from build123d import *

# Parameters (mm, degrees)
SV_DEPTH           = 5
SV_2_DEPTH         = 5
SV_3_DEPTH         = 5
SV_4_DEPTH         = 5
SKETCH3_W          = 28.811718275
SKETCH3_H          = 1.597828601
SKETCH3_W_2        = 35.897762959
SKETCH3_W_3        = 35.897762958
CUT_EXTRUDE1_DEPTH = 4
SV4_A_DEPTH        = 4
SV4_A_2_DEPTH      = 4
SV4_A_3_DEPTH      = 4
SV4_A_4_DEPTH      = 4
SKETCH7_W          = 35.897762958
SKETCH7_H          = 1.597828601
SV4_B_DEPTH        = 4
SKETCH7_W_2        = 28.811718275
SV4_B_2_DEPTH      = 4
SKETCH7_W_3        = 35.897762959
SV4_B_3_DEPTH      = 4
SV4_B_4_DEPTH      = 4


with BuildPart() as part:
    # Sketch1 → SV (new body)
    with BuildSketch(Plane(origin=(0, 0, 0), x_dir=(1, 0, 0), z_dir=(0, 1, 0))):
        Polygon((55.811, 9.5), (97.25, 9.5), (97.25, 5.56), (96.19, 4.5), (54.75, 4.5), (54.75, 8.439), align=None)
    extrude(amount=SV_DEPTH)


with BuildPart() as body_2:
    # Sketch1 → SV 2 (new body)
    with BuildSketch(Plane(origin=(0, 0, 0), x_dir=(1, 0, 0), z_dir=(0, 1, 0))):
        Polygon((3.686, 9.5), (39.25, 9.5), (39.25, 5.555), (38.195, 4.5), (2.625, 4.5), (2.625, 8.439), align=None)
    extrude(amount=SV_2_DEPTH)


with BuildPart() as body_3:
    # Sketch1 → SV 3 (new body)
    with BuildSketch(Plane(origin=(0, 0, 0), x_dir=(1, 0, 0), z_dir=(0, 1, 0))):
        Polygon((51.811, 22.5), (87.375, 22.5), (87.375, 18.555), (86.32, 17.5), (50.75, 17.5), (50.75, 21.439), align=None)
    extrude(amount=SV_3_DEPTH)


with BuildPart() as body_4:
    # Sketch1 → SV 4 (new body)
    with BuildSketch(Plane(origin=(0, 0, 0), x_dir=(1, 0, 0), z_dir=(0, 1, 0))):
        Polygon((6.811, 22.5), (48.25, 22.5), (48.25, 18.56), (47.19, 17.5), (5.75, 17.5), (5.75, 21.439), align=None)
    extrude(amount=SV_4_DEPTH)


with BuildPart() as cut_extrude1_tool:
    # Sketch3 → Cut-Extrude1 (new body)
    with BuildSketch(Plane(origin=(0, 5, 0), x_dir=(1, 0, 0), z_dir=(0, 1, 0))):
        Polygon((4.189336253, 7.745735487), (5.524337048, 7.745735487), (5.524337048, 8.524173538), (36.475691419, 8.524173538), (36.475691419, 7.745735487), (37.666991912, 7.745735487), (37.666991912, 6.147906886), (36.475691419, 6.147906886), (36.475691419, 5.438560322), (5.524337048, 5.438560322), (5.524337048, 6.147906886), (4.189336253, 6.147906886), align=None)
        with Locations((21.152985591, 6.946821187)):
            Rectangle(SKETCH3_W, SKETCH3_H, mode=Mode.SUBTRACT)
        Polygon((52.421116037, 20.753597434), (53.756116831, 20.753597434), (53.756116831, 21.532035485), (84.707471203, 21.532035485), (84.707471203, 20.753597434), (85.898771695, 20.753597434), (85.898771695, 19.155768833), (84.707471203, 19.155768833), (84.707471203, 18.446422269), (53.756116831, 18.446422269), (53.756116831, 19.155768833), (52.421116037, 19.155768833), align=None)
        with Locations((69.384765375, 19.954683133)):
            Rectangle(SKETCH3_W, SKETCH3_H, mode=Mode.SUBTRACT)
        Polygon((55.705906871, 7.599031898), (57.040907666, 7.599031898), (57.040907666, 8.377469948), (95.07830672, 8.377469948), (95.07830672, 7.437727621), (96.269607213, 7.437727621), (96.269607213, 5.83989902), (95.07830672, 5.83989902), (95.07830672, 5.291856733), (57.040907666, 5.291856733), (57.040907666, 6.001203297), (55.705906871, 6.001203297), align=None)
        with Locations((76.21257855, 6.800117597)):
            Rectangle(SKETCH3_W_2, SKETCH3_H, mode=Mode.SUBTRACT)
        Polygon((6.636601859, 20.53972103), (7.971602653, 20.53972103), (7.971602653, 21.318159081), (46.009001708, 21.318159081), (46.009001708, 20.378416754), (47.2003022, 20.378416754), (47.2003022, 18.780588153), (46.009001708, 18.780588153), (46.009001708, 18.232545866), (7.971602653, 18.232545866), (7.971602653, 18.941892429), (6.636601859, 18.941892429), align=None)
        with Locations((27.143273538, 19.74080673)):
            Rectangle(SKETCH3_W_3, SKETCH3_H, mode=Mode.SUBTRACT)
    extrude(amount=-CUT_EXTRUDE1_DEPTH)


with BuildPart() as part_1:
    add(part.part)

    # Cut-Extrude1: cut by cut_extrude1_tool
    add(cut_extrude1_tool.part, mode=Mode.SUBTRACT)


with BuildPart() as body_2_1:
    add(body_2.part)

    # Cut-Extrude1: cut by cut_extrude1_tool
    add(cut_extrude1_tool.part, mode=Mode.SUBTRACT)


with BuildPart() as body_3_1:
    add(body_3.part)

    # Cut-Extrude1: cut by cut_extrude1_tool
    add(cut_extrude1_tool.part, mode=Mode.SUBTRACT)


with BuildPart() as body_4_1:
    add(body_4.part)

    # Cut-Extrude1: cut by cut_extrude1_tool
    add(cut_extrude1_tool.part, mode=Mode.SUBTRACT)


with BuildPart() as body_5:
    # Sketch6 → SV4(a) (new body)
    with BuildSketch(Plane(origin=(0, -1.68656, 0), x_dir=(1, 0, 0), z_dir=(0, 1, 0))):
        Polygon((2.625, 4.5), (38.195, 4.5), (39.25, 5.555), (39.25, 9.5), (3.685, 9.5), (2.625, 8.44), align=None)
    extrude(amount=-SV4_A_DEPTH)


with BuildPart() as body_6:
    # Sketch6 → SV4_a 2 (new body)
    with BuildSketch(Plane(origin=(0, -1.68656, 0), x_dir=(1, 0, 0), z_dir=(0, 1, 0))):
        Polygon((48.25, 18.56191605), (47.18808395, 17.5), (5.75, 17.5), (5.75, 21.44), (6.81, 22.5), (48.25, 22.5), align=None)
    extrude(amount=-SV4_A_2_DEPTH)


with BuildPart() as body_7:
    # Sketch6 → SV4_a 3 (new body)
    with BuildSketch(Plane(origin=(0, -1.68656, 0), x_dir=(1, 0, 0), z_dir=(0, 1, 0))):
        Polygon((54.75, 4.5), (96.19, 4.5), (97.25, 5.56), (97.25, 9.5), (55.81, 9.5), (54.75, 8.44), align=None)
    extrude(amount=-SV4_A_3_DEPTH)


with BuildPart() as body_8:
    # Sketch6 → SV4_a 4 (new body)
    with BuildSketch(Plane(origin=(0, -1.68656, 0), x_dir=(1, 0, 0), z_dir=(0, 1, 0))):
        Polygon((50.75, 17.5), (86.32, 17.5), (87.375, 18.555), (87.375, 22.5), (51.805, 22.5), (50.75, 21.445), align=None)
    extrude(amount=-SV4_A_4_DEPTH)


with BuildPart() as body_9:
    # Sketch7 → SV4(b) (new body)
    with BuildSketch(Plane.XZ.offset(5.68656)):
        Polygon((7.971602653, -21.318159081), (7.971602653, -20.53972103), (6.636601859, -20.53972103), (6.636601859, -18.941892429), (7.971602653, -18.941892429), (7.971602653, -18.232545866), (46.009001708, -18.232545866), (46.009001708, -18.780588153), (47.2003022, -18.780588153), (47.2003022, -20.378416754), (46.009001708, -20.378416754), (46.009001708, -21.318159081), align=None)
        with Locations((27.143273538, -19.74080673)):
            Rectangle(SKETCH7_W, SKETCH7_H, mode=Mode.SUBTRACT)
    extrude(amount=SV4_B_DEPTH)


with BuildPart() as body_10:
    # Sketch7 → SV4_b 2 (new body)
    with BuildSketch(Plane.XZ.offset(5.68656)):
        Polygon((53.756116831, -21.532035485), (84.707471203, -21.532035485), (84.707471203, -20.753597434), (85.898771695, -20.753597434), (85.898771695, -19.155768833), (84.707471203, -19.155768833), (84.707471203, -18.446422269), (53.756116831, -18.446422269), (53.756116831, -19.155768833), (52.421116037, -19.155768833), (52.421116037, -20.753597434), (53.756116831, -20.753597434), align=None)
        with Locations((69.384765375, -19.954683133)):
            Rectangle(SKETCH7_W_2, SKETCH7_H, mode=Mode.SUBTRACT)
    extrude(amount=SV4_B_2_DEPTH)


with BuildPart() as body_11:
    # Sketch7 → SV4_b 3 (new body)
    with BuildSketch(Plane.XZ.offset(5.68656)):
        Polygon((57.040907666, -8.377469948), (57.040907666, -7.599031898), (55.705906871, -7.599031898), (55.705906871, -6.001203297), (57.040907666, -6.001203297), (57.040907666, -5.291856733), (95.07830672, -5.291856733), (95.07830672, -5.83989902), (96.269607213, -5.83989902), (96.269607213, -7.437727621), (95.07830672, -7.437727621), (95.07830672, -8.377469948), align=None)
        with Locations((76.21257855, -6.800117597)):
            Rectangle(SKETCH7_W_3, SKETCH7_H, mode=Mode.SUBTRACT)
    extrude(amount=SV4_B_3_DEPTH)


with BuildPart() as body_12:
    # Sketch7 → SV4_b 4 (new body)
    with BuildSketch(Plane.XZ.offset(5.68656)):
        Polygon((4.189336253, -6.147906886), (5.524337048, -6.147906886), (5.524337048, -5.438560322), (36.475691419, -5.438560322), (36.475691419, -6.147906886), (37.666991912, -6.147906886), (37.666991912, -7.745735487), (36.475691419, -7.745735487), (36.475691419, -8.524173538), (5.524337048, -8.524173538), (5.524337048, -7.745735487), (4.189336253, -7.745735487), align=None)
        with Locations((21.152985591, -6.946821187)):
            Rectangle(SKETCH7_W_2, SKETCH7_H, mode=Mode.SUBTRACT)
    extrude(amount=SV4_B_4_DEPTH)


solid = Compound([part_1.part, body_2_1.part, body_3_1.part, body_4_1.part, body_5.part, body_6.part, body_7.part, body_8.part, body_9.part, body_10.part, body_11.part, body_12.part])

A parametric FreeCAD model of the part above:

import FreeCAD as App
import Part
import Sketcher

V = App.Vector
Q = App.Units.Quantity

doc = App.newDocument("Part")
body = doc.addObject("PartDesign::Body", "Body")

# Sketch on XZ plane
sketch1 = doc.addObject("Sketcher::SketchObject", "Sketch")
body.addObject(sketch1)
sketch1.AttachmentSupport = (doc.XZ_Plane, [""])
sketch1.MapMode = "FlatFace"
sketch1.addGeometry([
    Part.LineSegment(V(97.2, -9.5, 0), V(55.8, -9.5, 0)),  # 0
    Part.LineSegment(V(55.8, -9.5, 0), V(54.8, -8.4, 0)),  # 1
    Part.LineSegment(V(54.8, -8.4, 0), V(54.8, -4.5, 0)),  # 2
    Part.LineSegment(V(54.8, -4.5, 0), V(96.2, -4.5, 0)),  # 3
    Part.LineSegment(V(96.2, -4.5, 0), V(97.2, -5.6, 0)),  # 4
    Part.LineSegment(V(97.2, -5.6, 0), V(97.2, -9.5, 0)),  # 5
], False)
sketch1.addConstraint([
    Sketcher.Constraint("Coincident", 0, 2, 1, 1),
    Sketcher.Constraint("Coincident", 1, 2, 2, 1),
    Sketcher.Constraint("Coincident", 2, 2, 3, 1),
    Sketcher.Constraint("Coincident", 3, 2, 4, 1),
    Sketcher.Constraint("Coincident", 4, 2, 5, 1),
    Sketcher.Constraint("Coincident", 5, 2, 0, 1),
    Sketcher.Constraint("Horizontal", 0),
    Sketcher.Constraint("Vertical", 2),
    Sketcher.Constraint("Horizontal", 3),
    Sketcher.Constraint("Vertical", 5),
    Sketcher.Constraint("Parallel", 1, 4),
    Sketcher.Constraint("Angle", 1, Q("135 deg")),
    Sketcher.Constraint("DistanceY", 0, 2, 2, 2, Q("5 mm")),
    Sketcher.Constraint("DistanceX", 3, 1, 3, 2, Q("41.44 mm")),
    Sketcher.Constraint("DistanceY", 5, 2, 5, 1, Q("3.94 mm")),
    Sketcher.Constraint("DistanceY", 0, 2, -1, 1, Q("9.5 mm")),
    Sketcher.Constraint("DistanceX", 0, 2, 0, 1, Q("41.439 mm")),
    Sketcher.Constraint("DistanceX", -1, 1, 1, 2, Q("54.75 mm")),
])
pad1 = doc.addObject("PartDesign::Pad", "Pad")
body.addObject(pad1)
pad1.Profile = sketch1
pad1.Length = 5
pad1.Reversed = True
body2 = doc.addObject("PartDesign::Body", "Body001")

# Sketch on XZ plane
sketch2 = doc.addObject("Sketcher::SketchObject", "Sketch001")
body2.addObject(sketch2)
sketch2.AttachmentSupport = (doc.getObject("XZ_Plane001"), [""])
sketch2.MapMode = "FlatFace"
sketch2.addGeometry([
    Part.LineSegment(V(39.2, -9.5, 0), V(3.7, -9.5, 0)),  # 0
    Part.LineSegment(V(3.7, -9.5, 0), V(2.6, -8.4, 0)),  # 1
    Part.LineSegment(V(2.6, -8.4, 0), V(2.6, -4.5, 0)),  # 2
    Part.LineSegment(V(2.6, -4.5, 0), V(38.2, -4.5, 0)),  # 3
    Part.LineSegment(V(38.2, -4.5, 0), V(39.2, -5.6, 0)),  # 4
    Part.LineSegment(V(39.2, -5.6, 0), V(39.2, -9.5, 0)),  # 5
], False)
sketch2.addConstraint([
    Sketcher.Constraint("Coincident", 0, 2, 1, 1),
    Sketcher.Constraint("Coincident", 1, 2, 2, 1),
    Sketcher.Constraint("Coincident", 2, 2, 3, 1),
    Sketcher.Constraint("Coincident", 3, 2, 4, 1),
    Sketcher.Constraint("Coincident", 4, 2, 5, 1),
    Sketcher.Constraint("Coincident", 5, 2, 0, 1),
    Sketcher.Constraint("Horizontal", 0),
    Sketcher.Constraint("Vertical", 2),
    Sketcher.Constraint("Horizontal", 3),
    Sketcher.Constraint("Vertical", 5),
    Sketcher.Constraint("Parallel", 1, 4),
    Sketcher.Constraint("Angle", 1, Q("135 deg")),
    Sketcher.Constraint("DistanceY", 0, 2, 2, 2, Q("5 mm")),
    Sketcher.Constraint("DistanceX", 3, 1, 3, 2, Q("35.57 mm")),
    Sketcher.Constraint("DistanceY", 0, 2, -1, 1, Q("9.5 mm")),
    Sketcher.Constraint("DistanceX", 0, 2, 0, 1, Q("35.564 mm")),
    Sketcher.Constraint("DistanceY", 2, 1, 2, 2, Q("3.939 mm")),
    Sketcher.Constraint("DistanceX", -1, 1, 4, 2, Q("39.25 mm")),
])
pad2 = doc.addObject("PartDesign::Pad", "Pad001")
body2.addObject(pad2)
pad2.Profile = sketch2
pad2.Length = 5
pad2.Reversed = True
body3 = doc.addObject("PartDesign::Body", "Body002")

# Sketch on XZ plane
sketch3 = doc.addObject("Sketcher::SketchObject", "Sketch002")
body3.addObject(sketch3)
sketch3.AttachmentSupport = (doc.getObject("XZ_Plane002"), [""])
sketch3.MapMode = "FlatFace"
sketch3.addGeometry([
    Part.LineSegment(V(87.4, -22.5, 0), V(51.8, -22.5, 0)),  # 0
    Part.LineSegment(V(51.8, -22.5, 0), V(50.8, -21.4, 0)),  # 1
    Part.LineSegment(V(50.8, -21.4, 0), V(50.8, -17.5, 0)),  # 2
    Part.LineSegment(V(50.8, -17.5, 0), V(86.3, -17.5, 0)),  # 3
    Part.LineSegment(V(86.3, -17.5, 0), V(87.4, -18.6, 0)),  # 4
    Part.LineSegment(V(87.4, -18.6, 0), V(87.4, -22.5, 0)),  # 5
], False)
sketch3.addConstraint([
    Sketcher.Constraint("Coincident", 0, 2, 1, 1),
    Sketcher.Constraint("Coincident", 1, 2, 2, 1),
    Sketcher.Constraint("Coincident", 2, 2, 3, 1),
    Sketcher.Constraint("Coincident", 3, 2, 4, 1),
    Sketcher.Constraint("Coincident", 4, 2, 5, 1),
    Sketcher.Constraint("Coincident", 5, 2, 0, 1),
    Sketcher.Constraint("Horizontal", 0),
    Sketcher.Constraint("Vertical", 2),
    Sketcher.Constraint("Horizontal", 3),
    Sketcher.Constraint("Vertical", 5),
    Sketcher.Constraint("Parallel", 1, 4),
    Sketcher.Constraint("Angle", 1, Q("135 deg")),
    Sketcher.Constraint("DistanceY", 0, 2, 2, 2, Q("5 mm")),
    Sketcher.Constraint("DistanceX", 3, 1, 3, 2, Q("35.57 mm")),
    Sketcher.Constraint("DistanceY", 0, 2, -1, 1, Q("22.5 mm")),
    Sketcher.Constraint("DistanceX", 0, 2, 0, 1, Q("35.564 mm")),
    Sketcher.Constraint("DistanceY", 2, 1, 2, 2, Q("3.939 mm")),
    Sketcher.Constraint("DistanceX", -1, 1, 1, 2, Q("50.75 mm")),
])
pad3 = doc.addObject("PartDesign::Pad", "Pad002")
body3.addObject(pad3)
pad3.Profile = sketch3
pad3.Length = 5
pad3.Reversed = True
body4 = doc.addObject("PartDesign::Body", "Body003")

# Sketch on XZ plane
sketch4 = doc.addObject("Sketcher::SketchObject", "Sketch003")
body4.addObject(sketch4)
sketch4.AttachmentSupport = (doc.getObject("XZ_Plane003"), [""])
sketch4.MapMode = "FlatFace"
sketch4.addGeometry([
    Part.LineSegment(V(48.2, -22.5, 0), V(6.8, -22.5, 0)),  # 0
    Part.LineSegment(V(6.8, -22.5, 0), V(5.8, -21.4, 0)),  # 1
    Part.LineSegment(V(5.8, -21.4, 0), V(5.8, -17.5, 0)),  # 2
    Part.LineSegment(V(5.8, -17.5, 0), V(47.2, -17.5, 0)),  # 3
    Part.LineSegment(V(47.2, -17.5, 0), V(48.2, -18.6, 0)),  # 4
    Part.LineSegment(V(48.2, -18.6, 0), V(48.2, -22.5, 0)),  # 5
], False)
sketch4.addConstraint([
    Sketcher.Constraint("Coincident", 0, 2, 1, 1),
    Sketcher.Constraint("Coincident", 1, 2, 2, 1),
    Sketcher.Constraint("Coincident", 2, 2, 3, 1),
    Sketcher.Constraint("Coincident", 3, 2, 4, 1),
    Sketcher.Constraint("Coincident", 4, 2, 5, 1),
    Sketcher.Constraint("Coincident", 5, 2, 0, 1),
    Sketcher.Constraint("Horizontal", 0),
    Sketcher.Constraint("Vertical", 2),
    Sketcher.Constraint("Horizontal", 3),
    Sketcher.Constraint("Vertical", 5),
    Sketcher.Constraint("Parallel", 1, 4),
    Sketcher.Constraint("Angle", 1, Q("135 deg")),
    Sketcher.Constraint("DistanceY", 0, 2, 2, 2, Q("5 mm")),
    Sketcher.Constraint("DistanceX", 3, 1, 3, 2, Q("41.44 mm")),
    Sketcher.Constraint("DistanceY", 5, 2, 5, 1, Q("3.94 mm")),
    Sketcher.Constraint("DistanceY", 0, 2, -1, 1, Q("22.5 mm")),
    Sketcher.Constraint("DistanceX", 0, 2, 0, 1, Q("41.439 mm")),
    Sketcher.Constraint("DistanceX", -1, 1, 1, 2, Q("5.75 mm")),
])
pad4 = doc.addObject("PartDesign::Pad", "Pad003")
body4.addObject(pad4)
pad4.Profile = sketch4
pad4.Length = 5
pad4.Reversed = True
body5 = doc.addObject("PartDesign::Body", "Body004")
body5.AllowCompound = True

# Sketch on XZ plane
sketch5 = doc.addObject("Sketcher::SketchObject", "Sketch004")
body5.addObject(sketch5)
sketch5.AttachmentSupport = (doc.getObject("XZ_Plane004"), [""])
sketch5.MapMode = "FlatFace"
sketch5.AttachmentOffset = App.Placement(V(0, 0, -5), App.Rotation())
sketch5.addGeometry([
    Part.LineSegment(V(5.5, -7.7, 0), V(4.2, -7.7, 0)),  # 0
    Part.LineSegment(V(4.2, -7.7, 0), V(4.2, -6.1, 0)),  # 1
    Part.LineSegment(V(4.2, -6.1, 0), V(5.5, -6.1, 0)),  # 2
    Part.LineSegment(V(5.5, -6.1, 0), V(5.5, -5.4, 0)),  # 3
    Part.LineSegment(V(5.5, -5.4, 0), V(36.5, -5.4, 0)),  # 4
    Part.LineSegment(V(36.5, -5.4, 0), V(36.5, -6.1, 0)),  # 5
    Part.LineSegment(V(36.5, -6.1, 0), V(37.7, -6.1, 0)),  # 6
    Part.LineSegment(V(37.7, -6.1, 0), V(37.7, -7.7, 0)),  # 7
    Part.LineSegment(V(37.7, -7.7, 0), V(36.5, -7.7, 0)),  # 8
    Part.LineSegment(V(36.5, -7.7, 0), V(36.5, -8.5, 0)),  # 9
    Part.LineSegment(V(36.5, -8.5, 0), V(5.5, -8.5, 0)),  # 10
    Part.LineSegment(V(5.5, -8.5, 0), V(5.5, -7.7, 0)),  # 11
    Part.LineSegment(V(6.7, -6.1, 0), V(6.7, -7.7, 0)),  # 12
    Part.LineSegment(V(6.7, -7.7, 0), V(35.6, -7.7, 0)),  # 13
    Part.LineSegment(V(35.6, -7.7, 0), V(35.6, -6.1, 0)),  # 14
    Part.LineSegment(V(35.6, -6.1, 0), V(6.7, -6.1, 0)),  # 15
    Part.LineSegment(V(53.8, -20.8, 0), V(52.4, -20.8, 0)),  # 16
    Part.LineSegment(V(52.4, -20.8, 0), V(52.4, -19.2, 0)),  # 17
    Part.LineSegment(V(52.4, -19.2, 0), V(53.8, -19.2, 0)),  # 18
    Part.LineSegment(V(53.8, -19.2, 0), V(53.8, -18.4, 0)),  # 19
    Part.LineSegment(V(53.8, -18.4, 0), V(84.7, -18.4, 0)),  # 20
    Part.LineSegment(V(84.7, -18.4, 0), V(84.7, -19.2, 0)),  # 21
    Part.LineSegment(V(84.7, -19.2, 0), V(85.9, -19.2, 0)),  # 22
    Part.LineSegment(V(85.9, -19.2, 0), V(85.9, -20.8, 0)),  # 23
    Part.LineSegment(V(85.9, -20.8, 0), V(84.7, -20.8, 0)),  # 24
    Part.LineSegment(V(84.7, -20.8, 0), V(84.7, -21.5, 0)),  # 25
    Part.LineSegment(V(84.7, -21.5, 0), V(53.8, -21.5, 0)),  # 26
    Part.LineSegment(V(53.8, -21.5, 0), V(53.8, -20.8, 0)),  # 27
    Part.LineSegment(V(55, -19.2, 0), V(55, -20.8, 0)),  # 28
    Part.LineSegment(V(55, -20.8, 0), V(83.8, -20.8, 0)),  # 29
    Part.LineSegment(V(83.8, -20.8, 0), V(83.8, -19.2, 0)),  # 30
    Part.LineSegment(V(83.8, -19.2, 0), V(55, -19.2, 0)),  # 31
    Part.LineSegment(V(57, -7.6, 0), V(55.7, -7.6, 0)),  # 32
    Part.LineSegment(V(55.7, -7.6, 0), V(55.7, -6, 0)),  # 33
    Part.LineSegment(V(55.7, -6, 0), V(57, -6, 0)),  # 34
    Part.LineSegment(V(57, -6, 0), V(57, -5.3, 0)),  # 35
    Part.LineSegment(V(57, -5.3, 0), V(95.1, -5.3, 0)),  # 36
    Part.LineSegment(V(95.1, -5.3, 0), V(95.1, -5.8, 0)),  # 37
    Part.LineSegment(V(95.1, -5.8, 0), V(96.3, -5.8, 0)),  # 38
    Part.LineSegment(V(96.3, -5.8, 0), V(96.3, -7.4, 0)),  # 39
    Part.LineSegment(V(96.3, -7.4, 0), V(95.1, -7.4, 0)),  # 40
    Part.LineSegment(V(95.1, -7.4, 0), V(95.1, -8.4, 0)),  # 41
    Part.LineSegment(V(95.1, -8.4, 0), V(57, -8.4, 0)),  # 42
    Part.LineSegment(V(57, -8.4, 0), V(57, -7.6, 0)),  # 43
    Part.LineSegment(V(58.3, -6, 0), V(58.3, -7.6, 0)),  # 44
    Part.LineSegment(V(58.3, -7.6, 0), V(94.2, -7.6, 0)),  # 45
    Part.LineSegment(V(94.2, -7.6, 0), V(94.2, -6, 0)),  # 46
    Part.LineSegment(V(94.2, -6, 0), V(58.3, -6, 0)),  # 47
    Part.LineSegment(V(8, -20.5, 0), V(6.6, -20.5, 0)),  # 48
    Part.LineSegment(V(6.6, -20.5, 0), V(6.6, -18.9, 0)),  # 49
    Part.LineSegment(V(6.6, -18.9, 0), V(8, -18.9, 0)),  # 50
    Part.LineSegment(V(8, -18.9, 0), V(8, -18.2, 0)),  # 51
    Part.LineSegment(V(8, -18.2, 0), V(46, -18.2, 0)),  # 52
    Part.LineSegment(V(46, -18.2, 0), V(46, -18.8, 0)),  # 53
    Part.LineSegment(V(46, -18.8, 0), V(47.2, -18.8, 0)),  # 54
    Part.LineSegment(V(47.2, -18.8, 0), V(47.2, -20.4, 0)),  # 55
    Part.LineSegment(V(47.2, -20.4, 0), V(46, -20.4, 0)),  # 56
    Part.LineSegment(V(46, -20.4, 0), V(46, -21.3, 0)),  # 57
    Part.LineSegment(V(46, -21.3, 0), V(8, -21.3, 0)),  # 58
    Part.LineSegment(V(8, -21.3, 0), V(8, -20.5, 0)),  # 59
    Part.LineSegment(V(9.2, -18.9, 0), V(9.2, -20.5, 0)),  # 60
    Part.LineSegment(V(9.2, -20.5, 0), V(45.1, -20.5, 0)),  # 61
    Part.LineSegment(V(45.1, -20.5, 0), V(45.1, -18.9, 0)),  # 62
    Part.LineSegment(V(45.1, -18.9, 0), V(9.2, -18.9, 0)),  # 63
], False)
sketch5.addConstraint([
    Sketcher.Constraint("Coincident", 0, 2, 1, 1),
    Sketcher.Constraint("Coincident", 1, 2, 2, 1),
    Sketcher.Constraint("Coincident", 2, 2, 3, 1),
    Sketcher.Constraint("Coincident", 3, 2, 4, 1),
    Sketcher.Constraint("Coincident", 4, 2, 5, 1),
    Sketcher.Constraint("Coincident", 5, 2, 6, 1),
    Sketcher.Constraint("Coincident", 6, 2, 7, 1),
    Sketcher.Constraint("Coincident", 7, 2, 8, 1),
    Sketcher.Constraint("Coincident", 8, 2, 9, 1),
    Sketcher.Constraint("Coincident", 9, 2, 10, 1),
    Sketcher.Constraint("Coincident", 10, 2, 11, 1),
    Sketcher.Constraint("Coincident", 11, 2, 0, 1),
    Sketcher.Constraint("Coincident", 12, 2, 13, 1),
    Sketcher.Constraint("Coincident", 13, 2, 14, 1),
    Sketcher.Constraint("Coincident", 14, 2, 15, 1),
    Sketcher.Constraint("Coincident", 15, 2, 12, 1),
    Sketcher.Constraint("Coincident", 16, 2, 17, 1),
    Sketcher.Constraint("Coincident", 17, 2, 18, 1),
    Sketcher.Constraint("Coincident", 18, 2, 19, 1),
    Sketcher.Constraint("Coincident", 19, 2, 20, 1),
    Sketcher.Constraint("Coincident", 20, 2, 21, 1),
    Sketcher.Constraint("Coincident", 21, 2, 22, 1),
    Sketcher.Constraint("Coincident", 22, 2, 23, 1),
    Sketcher.Constraint("Coincident", 23, 2, 24, 1),
    Sketcher.Constraint("Coincident", 24, 2, 25, 1),
    Sketcher.Constraint("Coincident", 25, 2, 26, 1),
    Sketcher.Constraint("Coincident", 26, 2, 27, 1),
    Sketcher.Constraint("Coincident", 27, 2, 16, 1),
    Sketcher.Constraint("Coincident", 28, 2, 29, 1),
    Sketcher.Constraint("Coincident", 29, 2, 30, 1),
    Sketcher.Constraint("Coincident", 30, 2, 31, 1),
    Sketcher.Constraint("Coincident", 31, 2, 28, 1),
    Sketcher.Constraint("Coincident", 32, 2, 33, 1),
    Sketcher.Constraint("Coincident", 33, 2, 34, 1),
    Sketcher.Constraint("Coincident", 34, 2, 35, 1),
    Sketcher.Constraint("Coincident", 35, 2, 36, 1),
    Sketcher.Constraint("Coincident", 36, 2, 37, 1),
    Sketcher.Constraint("Coincident", 37, 2, 38, 1),
    Sketcher.Constraint("Coincident", 38, 2, 39, 1),
    Sketcher.Constraint("Coincident", 39, 2, 40, 1),
    Sketcher.Constraint("Coincident", 40, 2, 41, 1),
    Sketcher.Constraint("Coincident", 41, 2, 42, 1),
    Sketcher.Constraint("Coincident", 42, 2, 43, 1),
    Sketcher.Constraint("Coincident", 43, 2, 32, 1),
    Sketcher.Constraint("Coincident", 44, 2, 45, 1),
    Sketcher.Constraint("Coincident", 45, 2, 46, 1),
    Sketcher.Constraint("Coincident", 46, 2, 47, 1),
    Sketcher.Constraint("Coincident", 47, 2, 44, 1),
    Sketcher.Constraint("Coincident", 48, 2, 49, 1),
    Sketcher.Constraint("Coincident", 49, 2, 50, 1),
    Sketcher.Constraint("Coincident", 50, 2, 51, 1),
    Sketcher.Constraint("Coincident", 51, 2, 52, 1),
    Sketcher.Constraint("Coincident", 52, 2, 53, 1),
    Sketcher.Constraint("Coincident", 53, 2, 54, 1),
    Sketcher.Constraint("Coincident", 54, 2, 55, 1),
    Sketcher.Constraint("Coincident", 55, 2, 56, 1),
    Sketcher.Constraint("Coincident", 56, 2, 57, 1),
    Sketcher.Constraint("Coincident", 57, 2, 58, 1),
    Sketcher.Constraint("Coincident", 58, 2, 59, 1),
    Sketcher.Constraint("Coincident", 59, 2, 48, 1),
    Sketcher.Constraint("Coincident", 60, 2, 61, 1),
    Sketcher.Constraint("Coincident", 61, 2, 62, 1),
    Sketcher.Constraint("Coincident", 62, 2, 63, 1),
    Sketcher.Constraint("Coincident", 63, 2, 60, 1),
    Sketcher.Constraint("Horizontal", 0),
    Sketcher.Constraint("Vertical", 1),
    Sketcher.Constraint("Horizontal", 2),
    Sketcher.Constraint("Vertical", 3),
    Sketcher.Constraint("Horizontal", 4),
    Sketcher.Constraint("Vertical", 5),
    Sketcher.Constraint("Horizontal", 6),
    Sketcher.Constraint("Vertical", 7),
    Sketcher.Constraint("Horizontal", 8),
    Sketcher.Constraint("Vertical", 9),
    Sketcher.Constraint("Horizontal", 10),
    Sketcher.Constraint("Vertical", 11),
    Sketcher.Constraint("Vertical", 12),
    Sketcher.Constraint("Horizontal", 13),
    Sketcher.Constraint("Vertical", 14),
    Sketcher.Constraint("Horizontal", 15),
    Sketcher.Constraint("Horizontal", 16),
    Sketcher.Constraint("Vertical", 17),
    Sketcher.Constraint("Horizontal", 18),
    Sketcher.Constraint("Vertical", 19),
    Sketcher.Constraint("Horizontal", 20),
    Sketcher.Constraint("Vertical", 21),
    Sketcher.Constraint("Horizontal", 22),
    Sketcher.Constraint("Vertical", 23),
    Sketcher.Constraint("Horizontal", 24),
    Sketcher.Constraint("Vertical", 25),
    Sketcher.Constraint("Horizontal", 26),
    Sketcher.Constraint("Vertical", 27),
    Sketcher.Constraint("Vertical", 28),
    Sketcher.Constraint("Horizontal", 29),
    Sketcher.Constraint("Vertical", 30),
    Sketcher.Constraint("Horizontal", 31),
    Sketcher.Constraint("Horizontal", 32),
    Sketcher.Constraint("Vertical", 33),
    Sketcher.Constraint("Horizontal", 34),
    Sketcher.Constraint("Vertical", 35),
    Sketcher.Constraint("Horizontal", 36),
    Sketcher.Constraint("Vertical", 37),
    Sketcher.Constraint("Horizontal", 38),
    Sketcher.Constraint("Vertical", 39),
    Sketcher.Constraint("Horizontal", 40),
    Sketcher.Constraint("Vertical", 41),
    Sketcher.Constraint("Horizontal", 42),
    Sketcher.Constraint("Vertical", 43),
    Sketcher.Constraint("Vertical", 44),
    Sketcher.Constraint("Horizontal", 45),
    Sketcher.Constraint("Vertical", 46),
    Sketcher.Constraint("Horizontal", 47),
    Sketcher.Constraint("Horizontal", 48),
    Sketcher.Constraint("Vertical", 49),
    Sketcher.Constraint("Horizontal", 50),
    Sketcher.Constraint("Vertical", 51),
    Sketcher.Constraint("Horizontal", 52),
    Sketcher.Constraint("Vertical", 53),
    Sketcher.Constraint("Horizontal", 54),
    Sketcher.Constraint("Vertical", 55),
    Sketcher.Constraint("Horizontal", 56),
    Sketcher.Constraint("Vertical", 57),
    Sketcher.Constraint("Horizontal", 58),
    Sketcher.Constraint("Vertical", 59),
    Sketcher.Constraint("Vertical", 60),
    Sketcher.Constraint("Horizontal", 61),
    Sketcher.Constraint("Vertical", 62),
    Sketcher.Constraint("Horizontal", 63),
    Sketcher.Constraint("Horizontal", 2, 2, 5, 2),
    Sketcher.Constraint("Horizontal", 0, 2, 7, 2),
    Sketcher.Constraint("Horizontal", 11, 2, 12, 2),
    Sketcher.Constraint("Horizontal", 6, 2, 14, 2),
    Sketcher.Constraint("Horizontal", 18, 2, 21, 2),
    Sketcher.Constraint("Horizontal", 16, 2, 23, 2),
    Sketcher.Constraint("Horizontal", 27, 2, 28, 2),
    Sketcher.Constraint("Horizontal", 22, 2, 30, 2),
    Sketcher.Constraint("Horizontal", 43, 2, 44, 2),
    Sketcher.Constraint("Horizontal", 34, 2, 46, 2),
    Sketcher.Constraint("Horizontal", 59, 2, 60, 2),
    Sketcher.Constraint("Horizontal", 50, 2, 62, 2),
    Sketcher.Constraint("Vertical", 5, 2, 8, 2),
    Sketcher.Constraint("Vertical", 3, 2, 10, 2),
    Sketcher.Constraint("Vertical", 21, 2, 24, 2),
    Sketcher.Constraint("Vertical", 19, 2, 26, 2),
    Sketcher.Constraint("Vertical", 37, 2, 40, 2),
    Sketcher.Constraint("Vertical", 35, 2, 42, 2),
    Sketcher.Constraint("Vertical", 53, 2, 56, 2),
    Sketcher.Constraint("Vertical", 51, 2, 58, 2),
    Sketcher.Constraint("Equal", 2, 16),
    Sketcher.Constraint("Equal", 10, 20),
    Sketcher.Constraint("Equal", 8, 22),
    Sketcher.Constraint("Equal", 15, 29),
    Sketcher.Constraint("Equal", 18, 32),
    Sketcher.Constraint("Equal", 24, 38),
    Sketcher.Constraint("Equal", 34, 48),
    Sketcher.Constraint("Equal", 42, 52),
    Sketcher.Constraint("Equal", 40, 54),
    Sketcher.Constraint("Equal", 47, 61),
    Sketcher.Constraint("Equal", 14, 17),
    Sketcher.Constraint("Equal", 5, 19),
    Sketcher.Constraint("Equal", 11, 25),
    Sketcher.Constraint("Equal", 30, 33),
    Sketcher.Constraint("Equal", 21, 35),
    Sketcher.Constraint("Equal", 33, 39),
    Sketcher.Constraint("Equal", 27, 43),
    Sketcher.Constraint("Equal", 46, 49),
    Sketcher.Constraint("Equal", 35, 51),
    Sketcher.Constraint("Equal", 37, 53),
    Sketcher.Constraint("Equal", 49, 55),
    Sketcher.Constraint("Equal", 41, 57),
    Sketcher.Constraint("DistanceX", 0, 2, 0, 1, Q("1.335001 mm")),
    Sketcher.Constraint("DistanceX", 6, 1, 6, 2, Q("1.1913 mm")),
    Sketcher.Constraint("DistanceX", 36, 1, 36, 2, Q("38.037399 mm")),
    Sketcher.Constraint("DistanceX", -1, 1, 52, 2, Q("46.009002 mm")),
    Sketcher.Constraint("DistanceX", 13, 1, 13, 2, Q("28.811718 mm")),
    Sketcher.Constraint("DistanceY", 1, 1, 1, 2, Q("1.597829 mm")),
    Sketcher.Constraint("DistanceY", 9, 2, 9, 1, Q("0.778438 mm")),
    Sketcher.Constraint("DistanceY", 37, 2, -1, 1, Q("5.839899 mm")),
    Sketcher.Constraint("DistanceX", 4, 1, 4, 2, Q("30.951354 mm")),
    Sketcher.Constraint("DistanceX", 45, 1, 45, 2, Q("35.897763 mm")),
    Sketcher.Constraint("DistanceY", 3, 1, 3, 2, Q("0.709347 mm")),
    Sketcher.Constraint("DistanceY", 37, 2, 37, 1, Q("0.548042 mm")),
    Sketcher.Constraint("DistanceY", 3, 2, -1, 1, Q("5.43856 mm")),
    Sketcher.Constraint("DistanceX", -1, 1, 4, 2, Q("36.475691 mm")),
    Sketcher.Constraint("DistanceY", 17, 2, -1, 1, Q("19.155769 mm")),
    Sketcher.Constraint("DistanceX", -1, 1, 20, 2, Q("84.707471 mm")),
    Sketcher.Constraint("DistanceX", -1, 1, 45, 2, Q("94.16146 mm")),
    Sketcher.Constraint("DistanceY", 48, 2, -1, 1, Q("20.539721 mm")),
    Sketcher.Constraint("DistanceX", -1, 1, 12, 2, Q("6.747126 mm")),
    Sketcher.Constraint("DistanceX", -1, 1, 28, 2, Q("54.978906 mm")),
    Sketcher.Constraint("DistanceX", -1, 1, 32, 2, Q("55.705907 mm")),
    Sketcher.Constraint("DistanceX", -1, 1, 60, 2, Q("9.194392 mm")),
])
pad5 = doc.addObject("PartDesign::Pad", "Pad004")
body5.addObject(pad5)
pad5.Profile = sketch5
pad5.Length = 4
doc.recompute()

body6 = doc.addObject("PartDesign::Body", "Body005")
body6.BaseFeature = body5
boolean = doc.addObject("PartDesign::Boolean", "Boolean")
body.addObject(boolean)
boolean.Type = "Cut"
boolean.addObjects([body6])
doc.recompute()

body7 = doc.addObject("PartDesign::Body", "Body006")
body7.BaseFeature = body5
boolean2 = doc.addObject("PartDesign::Boolean", "Boolean001")
body2.addObject(boolean2)
boolean2.Type = "Cut"
boolean2.addObjects([body7])
doc.recompute()

body8 = doc.addObject("PartDesign::Body", "Body007")
body8.BaseFeature = body5
boolean3 = doc.addObject("PartDesign::Boolean", "Boolean002")
body3.addObject(boolean3)
boolean3.Type = "Cut"
boolean3.addObjects([body8])
doc.recompute()

boolean4 = doc.addObject("PartDesign::Boolean", "Boolean003")
body4.addObject(boolean4)
boolean4.Type = "Cut"
boolean4.addObjects([body5])
body9 = doc.addObject("PartDesign::Body", "Body008")

# Sketch on XZ plane
sketch6 = doc.addObject("Sketcher::SketchObject", "Sketch005")
body9.addObject(sketch6)
sketch6.AttachmentSupport = (doc.getObject("XZ_Plane008"), [""])
sketch6.MapMode = "FlatFace"
sketch6.AttachmentOffset = App.Placement(V(0, 0, 1.68656), App.Rotation())
sketch6.addGeometry([
    Part.LineSegment(V(2.6, -4.5, 0), V(38.2, -4.5, 0)),  # 0
    Part.LineSegment(V(38.2, -4.5, 0), V(39.2, -5.6, 0)),  # 1
    Part.LineSegment(V(39.2, -5.6, 0), V(39.2, -9.5, 0)),  # 2
    Part.LineSegment(V(39.2, -9.5, 0), V(3.7, -9.5, 0)),  # 3
    Part.LineSegment(V(3.7, -9.5, 0), V(2.6, -8.4, 0)),  # 4
    Part.LineSegment(V(2.6, -8.4, 0), V(2.6, -4.5, 0)),  # 5
], False)
sketch6.addConstraint([
    Sketcher.Constraint("Coincident", 0, 2, 1, 1),
    Sketcher.Constraint("Coincident", 1, 2, 2, 1),
    Sketcher.Constraint("Coincident", 2, 2, 3, 1),
    Sketcher.Constraint("Coincident", 3, 2, 4, 1),
    Sketcher.Constraint("Coincident", 4, 2, 5, 1),
    Sketcher.Constraint("Coincident", 5, 2, 0, 1),
    Sketcher.Constraint("Horizontal", 0),
    Sketcher.Constraint("Vertical", 2),
    Sketcher.Constraint("Horizontal", 3),
    Sketcher.Constraint("Vertical", 5),
    Sketcher.Constraint("Parallel", 1, 4),
    Sketcher.Constraint("Angle", 1, Q("-45 deg")),
    Sketcher.Constraint("DistanceY", 2, 2, 0, 2, Q("5 mm")),
    Sketcher.Constraint("DistanceX", 0, 1, 0, 2, Q("35.57 mm")),
    Sketcher.Constraint("DistanceY", 5, 1, 5, 2, Q("3.94 mm")),
    Sketcher.Constraint("DistanceY", 0, 2, -1, 1, Q("4.5 mm")),
    Sketcher.Constraint("DistanceX", 3, 2, 3, 1, Q("35.565 mm")),
    Sketcher.Constraint("DistanceX", -1, 1, 1, 2, Q("39.25 mm")),
])
pad6 = doc.addObject("PartDesign::Pad", "Pad005")
body9.addObject(pad6)
pad6.Profile = sketch6
pad6.Length = 4
body10 = doc.addObject("PartDesign::Body", "Body009")

# Sketch on XZ plane
sketch7 = doc.addObject("Sketcher::SketchObject", "Sketch006")
body10.addObject(sketch7)
sketch7.AttachmentSupport = (doc.getObject("XZ_Plane009"), [""])
sketch7.MapMode = "FlatFace"
sketch7.AttachmentOffset = App.Placement(V(0, 0, 1.68656), App.Rotation())
sketch7.addGeometry([
    Part.LineSegment(V(47.2, -17.5, 0), V(48.2, -18.6, 0)),  # 0
    Part.LineSegment(V(48.2, -18.6, 0), V(48.2, -22.5, 0)),  # 1
    Part.LineSegment(V(48.2, -22.5, 0), V(6.8, -22.5, 0)),  # 2
    Part.LineSegment(V(6.8, -22.5, 0), V(5.8, -21.4, 0)),  # 3
    Part.LineSegment(V(5.8, -21.4, 0), V(5.8, -17.5, 0)),  # 4
    Part.LineSegment(V(5.8, -17.5, 0), V(47.2, -17.5, 0)),  # 5
], False)
sketch7.addConstraint([
    Sketcher.Constraint("Coincident", 0, 2, 1, 1),
    Sketcher.Constraint("Coincident", 1, 2, 2, 1),
    Sketcher.Constraint("Coincident", 2, 2, 3, 1),
    Sketcher.Constraint("Coincident", 3, 2, 4, 1),
    Sketcher.Constraint("Coincident", 4, 2, 5, 1),
    Sketcher.Constraint("Coincident", 5, 2, 0, 1),
    Sketcher.Constraint("Vertical", 1),
    Sketcher.Constraint("Horizontal", 2),
    Sketcher.Constraint("Vertical", 4),
    Sketcher.Constraint("Horizontal", 5),
    Sketcher.Constraint("Parallel", 0, 3),
    Sketcher.Constraint("Angle", 0, Q("-45 deg")),
    Sketcher.Constraint("DistanceY", 2, 2, 4, 2, Q("5 mm")),
    Sketcher.Constraint("DistanceX", 2, 2, 2, 1, Q("41.44 mm")),
    Sketcher.Constraint("DistanceY", 4, 1, 4, 2, Q("3.94 mm")),
    Sketcher.Constraint("DistanceY", 1, 2, -1, 1, Q("22.5 mm")),
    Sketcher.Constraint("DistanceX", -1, 1, 0, 2, Q("48.25 mm")),
    Sketcher.Constraint("DistanceX", 5, 1, 5, 2, Q("41.438084 mm")),
])
pad7 = doc.addObject("PartDesign::Pad", "Pad006")
body10.addObject(pad7)
pad7.Profile = sketch7
pad7.Length = 4
body11 = doc.addObject("PartDesign::Body", "Body010")

# Sketch on XZ plane
sketch8 = doc.addObject("Sketcher::SketchObject", "Sketch007")
body11.addObject(sketch8)
sketch8.AttachmentSupport = (doc.getObject("XZ_Plane010"), [""])
sketch8.MapMode = "FlatFace"
sketch8.AttachmentOffset = App.Placement(V(0, 0, 1.68656), App.Rotation())
sketch8.addGeometry([
    Part.LineSegment(V(54.8, -4.5, 0), V(96.2, -4.5, 0)),  # 0
    Part.LineSegment(V(96.2, -4.5, 0), V(97.2, -5.6, 0)),  # 1
    Part.LineSegment(V(97.2, -5.6, 0), V(97.2, -9.5, 0)),  # 2
    Part.LineSegment(V(97.2, -9.5, 0), V(55.8, -9.5, 0)),  # 3
    Part.LineSegment(V(55.8, -9.5, 0), V(54.8, -8.4, 0)),  # 4
    Part.LineSegment(V(54.8, -8.4, 0), V(54.8, -4.5, 0)),  # 5
], False)
sketch8.addConstraint([
    Sketcher.Constraint("Coincident", 0, 2, 1, 1),
    Sketcher.Constraint("Coincident", 1, 2, 2, 1),
    Sketcher.Constraint("Coincident", 2, 2, 3, 1),
    Sketcher.Constraint("Coincident", 3, 2, 4, 1),
    Sketcher.Constraint("Coincident", 4, 2, 5, 1),
    Sketcher.Constraint("Coincident", 5, 2, 0, 1),
    Sketcher.Constraint("Horizontal", 0),
    Sketcher.Constraint("Vertical", 2),
    Sketcher.Constraint("Horizontal", 3),
    Sketcher.Constraint("Vertical", 5),
    Sketcher.Constraint("Parallel", 1, 4),
    Sketcher.Constraint("Equal", 0, 3),
    Sketcher.Constraint("Angle", 1, Q("-45 deg")),
    Sketcher.Constraint("DistanceY", 2, 2, 0, 2, Q("5 mm")),
    Sketcher.Constraint("DistanceX", 0, 1, 0, 2, Q("41.44 mm")),
    Sketcher.Constraint("DistanceY", 2, 2, 2, 1, Q("3.94 mm")),
    Sketcher.Constraint("DistanceY", 0, 2, -1, 1, Q("4.5 mm")),
    Sketcher.Constraint("DistanceX", -1, 1, 0, 2, Q("96.19 mm")),
])
pad8 = doc.addObject("PartDesign::Pad", "Pad007")
body11.addObject(pad8)
pad8.Profile = sketch8
pad8.Length = 4
body12 = doc.addObject("PartDesign::Body", "Body011")

# Sketch on XZ plane
sketch9 = doc.addObject("Sketcher::SketchObject", "Sketch008")
body12.addObject(sketch9)
sketch9.AttachmentSupport = (doc.getObject("XZ_Plane011"), [""])
sketch9.MapMode = "FlatFace"
sketch9.AttachmentOffset = App.Placement(V(0, 0, 1.68656), App.Rotation())
sketch9.addGeometry([
    Part.LineSegment(V(50.8, -17.5, 0), V(86.3, -17.5, 0)),  # 0
    Part.LineSegment(V(86.3, -17.5, 0), V(87.4, -18.6, 0)),  # 1
    Part.LineSegment(V(87.4, -18.6, 0), V(87.4, -22.5, 0)),  # 2
    Part.LineSegment(V(87.4, -22.5, 0), V(51.8, -22.5, 0)),  # 3
    Part.LineSegment(V(51.8, -22.5, 0), V(50.8, -21.4, 0)),  # 4
    Part.LineSegment(V(50.8, -21.4, 0), V(50.8, -17.5, 0)),  # 5
], False)
sketch9.addConstraint([
    Sketcher.Constraint("Coincident", 0, 2, 1, 1),
    Sketcher.Constraint("Coincident", 1, 2, 2, 1),
    Sketcher.Constraint("Coincident", 2, 2, 3, 1),
    Sketcher.Constraint("Coincident", 3, 2, 4, 1),
    Sketcher.Constraint("Coincident", 4, 2, 5, 1),
    Sketcher.Constraint("Coincident", 5, 2, 0, 1),
    Sketcher.Constraint("Horizontal", 0),
    Sketcher.Constraint("Vertical", 2),
    Sketcher.Constraint("Horizontal", 3),
    Sketcher.Constraint("Vertical", 5),
    Sketcher.Constraint("Parallel", 1, 4),
    Sketcher.Constraint("Equal", 0, 3),
    Sketcher.Constraint("Angle", 1, Q("-45 deg")),
    Sketcher.Constraint("DistanceY", 2, 2, 0, 2, Q("5 mm")),
    Sketcher.Constraint("DistanceX", 0, 1, 0, 2, Q("35.57 mm")),
    Sketcher.Constraint("DistanceY", 0, 2, -1, 1, Q("17.5 mm")),
    Sketcher.Constraint("DistanceY", 2, 2, 2, 1, Q("3.945 mm")),
    Sketcher.Constraint("DistanceX", -1, 1, 0, 2, Q("86.32 mm")),
])
pad9 = doc.addObject("PartDesign::Pad", "Pad008")
body12.addObject(pad9)
pad9.Profile = sketch9
pad9.Length = 4
body13 = doc.addObject("PartDesign::Body", "Body012")

# Sketch on XZ plane
sketch10 = doc.addObject("Sketcher::SketchObject", "Sketch009")
body13.addObject(sketch10)
sketch10.AttachmentSupport = (doc.getObject("XZ_Plane012"), [""])
sketch10.MapMode = "FlatFace"
sketch10.AttachmentOffset = App.Placement(V(0, 0, 5.68656), App.Rotation())
sketch10.addGeometry([
    Part.LineSegment(V(8, -20.5, 0), V(8, -21.3, 0)),  # 0
    Part.LineSegment(V(8, -21.3, 0), V(46, -21.3, 0)),  # 1
    Part.LineSegment(V(46, -21.3, 0), V(46, -20.4, 0)),  # 2
    Part.LineSegment(V(46, -20.4, 0), V(47.2, -20.4, 0)),  # 3
    Part.LineSegment(V(47.2, -20.4, 0), V(47.2, -18.8, 0)),  # 4
    Part.LineSegment(V(47.2, -18.8, 0), V(46, -18.8, 0)),  # 5
    Part.LineSegment(V(46, -18.8, 0), V(46, -18.2, 0)),  # 6
    Part.LineSegment(V(46, -18.2, 0), V(8, -18.2, 0)),  # 7
    Part.LineSegment(V(8, -18.2, 0), V(8, -18.9, 0)),  # 8
    Part.LineSegment(V(8, -18.9, 0), V(6.6, -18.9, 0)),  # 9
    Part.LineSegment(V(6.6, -18.9, 0), V(6.6, -20.5, 0)),  # 10
    Part.LineSegment(V(6.6, -20.5, 0), V(8, -20.5, 0)),  # 11
    Part.LineSegment(V(9.2, -20.5, 0), V(9.2, -18.9, 0)),  # 12
    Part.LineSegment(V(9.2, -18.9, 0), V(45.1, -18.9, 0)),  # 13
    Part.LineSegment(V(45.1, -18.9, 0), V(45.1, -20.5, 0)),  # 14
    Part.LineSegment(V(45.1, -20.5, 0), V(9.2, -20.5, 0)),  # 15
], False)
sketch10.addConstraint([
    Sketcher.Constraint("Coincident", 0, 2, 1, 1),
    Sketcher.Constraint("Coincident", 1, 2, 2, 1),
    Sketcher.Constraint("Coincident", 2, 2, 3, 1),
    Sketcher.Constraint("Coincident", 3, 2, 4, 1),
    Sketcher.Constraint("Coincident", 4, 2, 5, 1),
    Sketcher.Constraint("Coincident", 5, 2, 6, 1),
    Sketcher.Constraint("Coincident", 6, 2, 7, 1),
    Sketcher.Constraint("Coincident", 7, 2, 8, 1),
    Sketcher.Constraint("Coincident", 8, 2, 9, 1),
    Sketcher.Constraint("Coincident", 9, 2, 10, 1),
    Sketcher.Constraint("Coincident", 10, 2, 11, 1),
    Sketcher.Constraint("Coincident", 11, 2, 0, 1),
    Sketcher.Constraint("Coincident", 12, 2, 13, 1),
    Sketcher.Constraint("Coincident", 13, 2, 14, 1),
    Sketcher.Constraint("Coincident", 14, 2, 15, 1),
    Sketcher.Constraint("Coincident", 15, 2, 12, 1),
    Sketcher.Constraint("Vertical", 0),
    Sketcher.Constraint("Horizontal", 1),
    Sketcher.Constraint("Vertical", 2),
    Sketcher.Constraint("Horizontal", 3),
    Sketcher.Constraint("Vertical", 4),
    Sketcher.Constraint("Horizontal", 5),
    Sketcher.Constraint("Vertical", 6),
    Sketcher.Constraint("Horizontal", 7),
    Sketcher.Constraint("Vertical", 8),
    Sketcher.Constraint("Horizontal", 9),
    Sketcher.Constraint("Vertical", 10),
    Sketcher.Constraint("Horizontal", 11),
    Sketcher.Constraint("Vertical", 12),
    Sketcher.Constraint("Horizontal", 13),
    Sketcher.Constraint("Vertical", 14),
    Sketcher.Constraint("Horizontal", 15),
    Sketcher.Constraint("Horizontal", 9, 2, 12, 2),
    Sketcher.Constraint("Horizontal", 11, 2, 14, 2),
    Sketcher.Constraint("Vertical", 2, 2, 5, 2),
    Sketcher.Constraint("Vertical", 0, 2, 7, 2),
    Sketcher.Constraint("Equal", 4, 10),
    Sketcher.Constraint("DistanceX", 9, 2, 9, 1, Q("1.335001 mm")),
    Sketcher.Constraint("DistanceX", 1, 1, 1, 2, Q("38.037399 mm")),
    Sketcher.Constraint("DistanceX", 3, 1, 3, 2, Q("1.1913 mm")),
    Sketcher.Constraint("DistanceX", -1, 1, 1, 2, Q("46.009002 mm")),
    Sketcher.Constraint("DistanceY", 0, 2, 0, 1, Q("0.778438 mm")),
    Sketcher.Constraint("DistanceY", 4, 1, 4, 2, Q("1.597829 mm")),
    Sketcher.Constraint("DistanceX", 13, 1, 13, 2, Q("35.897763 mm")),
    Sketcher.Constraint("DistanceY", 2, 1, 2, 2, Q("0.939742 mm")),
    Sketcher.Constraint("DistanceY", 6, 1, 6, 2, Q("0.548042 mm")),
    Sketcher.Constraint("DistanceY", 0, 2, -1, 1, Q("21.318159 mm")),
    Sketcher.Constraint("DistanceX", 8, 2, 12, 2, Q("1.222789 mm")),
])
pad10 = doc.addObject("PartDesign::Pad", "Pad009")
body13.addObject(pad10)
pad10.Profile = sketch10
pad10.Length = 4
body14 = doc.addObject("PartDesign::Body", "Body013")

# Sketch on XZ plane
sketch11 = doc.addObject("Sketcher::SketchObject", "Sketch010")
body14.addObject(sketch11)
sketch11.AttachmentSupport = (doc.getObject("XZ_Plane013"), [""])
sketch11.MapMode = "FlatFace"
sketch11.AttachmentOffset = App.Placement(V(0, 0, 5.68656), App.Rotation())
sketch11.addGeometry([
    Part.LineSegment(V(53.8, -21.5, 0), V(84.7, -21.5, 0)),  # 0
    Part.LineSegment(V(84.7, -21.5, 0), V(84.7, -20.8, 0)),  # 1
    Part.LineSegment(V(84.7, -20.8, 0), V(85.9, -20.8, 0)),  # 2
    Part.LineSegment(V(85.9, -20.8, 0), V(85.9, -19.2, 0)),  # 3
    Part.LineSegment(V(85.9, -19.2, 0), V(84.7, -19.2, 0)),  # 4
    Part.LineSegment(V(84.7, -19.2, 0), V(84.7, -18.4, 0)),  # 5
    Part.LineSegment(V(84.7, -18.4, 0), V(53.8, -18.4, 0)),  # 6
    Part.LineSegment(V(53.8, -18.4, 0), V(53.8, -19.2, 0)),  # 7
    Part.LineSegment(V(53.8, -19.2, 0), V(52.4, -19.2, 0)),  # 8
    Part.LineSegment(V(52.4, -19.2, 0), V(52.4, -20.8, 0)),  # 9
    Part.LineSegment(V(52.4, -20.8, 0), V(53.8, -20.8, 0)),  # 10
    Part.LineSegment(V(53.8, -20.8, 0), V(53.8, -21.5, 0)),  # 11
    Part.LineSegment(V(83.8, -20.8, 0), V(55, -20.8, 0)),  # 12
    Part.LineSegment(V(55, -20.8, 0), V(55, -19.2, 0)),  # 13
    Part.LineSegment(V(55, -19.2, 0), V(83.8, -19.2, 0)),  # 14
    Part.LineSegment(V(83.8, -19.2, 0), V(83.8, -20.8, 0)),  # 15
], False)
sketch11.addConstraint([
    Sketcher.Constraint("Coincident", 0, 2, 1, 1),
    Sketcher.Constraint("Coincident", 1, 2, 2, 1),
    Sketcher.Constraint("Coincident", 2, 2, 3, 1),
    Sketcher.Constraint("Coincident", 3, 2, 4, 1),
    Sketcher.Constraint("Coincident", 4, 2, 5, 1),
    Sketcher.Constraint("Coincident", 5, 2, 6, 1),
    Sketcher.Constraint("Coincident", 6, 2, 7, 1),
    Sketcher.Constraint("Coincident", 7, 2, 8, 1),
    Sketcher.Constraint("Coincident", 8, 2, 9, 1),
    Sketcher.Constraint("Coincident", 9, 2, 10, 1),
    Sketcher.Constraint("Coincident", 10, 2, 11, 1),
    Sketcher.Constraint("Coincident", 11, 2, 0, 1),
    Sketcher.Constraint("Coincident", 12, 2, 13, 1),
    Sketcher.Constraint("Coincident", 13, 2, 14, 1),
    Sketcher.Constraint("Coincident", 14, 2, 15, 1),
    Sketcher.Constraint("Coincident", 15, 2, 12, 1),
    Sketcher.Constraint("Horizontal", 0),
    Sketcher.Constraint("Vertical", 1),
    Sketcher.Constraint("Horizontal", 2),
    Sketcher.Constraint("Vertical", 3),
    Sketcher.Constraint("Horizontal", 4),
    Sketcher.Constraint("Vertical", 5),
    Sketcher.Constraint("Horizontal", 6),
    Sketcher.Constraint("Vertical", 7),
    Sketcher.Constraint("Horizontal", 8),
    Sketcher.Constraint("Vertical", 9),
    Sketcher.Constraint("Horizontal", 10),
    Sketcher.Constraint("Vertical", 11),
    Sketcher.Constraint("Horizontal", 12),
    Sketcher.Constraint("Vertical", 13),
    Sketcher.Constraint("Horizontal", 14),
    Sketcher.Constraint("Vertical", 15),
    Sketcher.Constraint("Horizontal", 4, 2, 7, 2),
    Sketcher.Constraint("Horizontal", 2, 2, 9, 2),
    Sketcher.Constraint("Horizontal", 10, 2, 12, 2),
    Sketcher.Constraint("Horizontal", 8, 2, 13, 2),
    Sketcher.Constraint("Vertical", 1, 2, 4, 2),
    Sketcher.Constraint("Vertical", 7, 2, 10, 2),
    Sketcher.Constraint("DistanceX", 8, 2, 8, 1, Q("1.335001 mm")),
    Sketcher.Constraint("DistanceX", 2, 1, 2, 2, Q("1.1913 mm")),
    Sketcher.Constraint("DistanceX", 12, 2, 12, 1, Q("28.811718 mm")),
    Sketcher.Constraint("DistanceY", 1, 1, 1, 2, Q("0.778438 mm")),
    Sketcher.Constraint("DistanceY", 3, 1, 3, 2, Q("1.597829 mm")),
    Sketcher.Constraint("DistanceX", 0, 1, 0, 2, Q("30.951354 mm")),
    Sketcher.Constraint("DistanceY", 5, 1, 5, 2, Q("0.709347 mm")),
    Sketcher.Constraint("DistanceX", -1, 1, 0, 2, Q("84.707471 mm")),
    Sketcher.Constraint("DistanceY", 3, 2, -1, 1, Q("19.155769 mm")),
    Sketcher.Constraint("DistanceX", 10, 2, 12, 2, Q("1.222789 mm")),
])
pad11 = doc.addObject("PartDesign::Pad", "Pad010")
body14.addObject(pad11)
pad11.Profile = sketch11
pad11.Length = 4
body15 = doc.addObject("PartDesign::Body", "Body014")

# Sketch on XZ plane
sketch12 = doc.addObject("Sketcher::SketchObject", "Sketch011")
body15.addObject(sketch12)
sketch12.AttachmentSupport = (doc.getObject("XZ_Plane014"), [""])
sketch12.MapMode = "FlatFace"
sketch12.AttachmentOffset = App.Placement(V(0, 0, 5.68656), App.Rotation())
sketch12.addGeometry([
    Part.LineSegment(V(57, -7.6, 0), V(57, -8.4, 0)),  # 0
    Part.LineSegment(V(57, -8.4, 0), V(95.1, -8.4, 0)),  # 1
    Part.LineSegment(V(95.1, -8.4, 0), V(95.1, -7.4, 0)),  # 2
    Part.LineSegment(V(95.1, -7.4, 0), V(96.3, -7.4, 0)),  # 3
    Part.LineSegment(V(96.3, -7.4, 0), V(96.3, -5.8, 0)),  # 4
    Part.LineSegment(V(96.3, -5.8, 0), V(95.1, -5.8, 0)),  # 5
    Part.LineSegment(V(95.1, -5.8, 0), V(95.1, -5.3, 0)),  # 6
    Part.LineSegment(V(95.1, -5.3, 0), V(57, -5.3, 0)),  # 7
    Part.LineSegment(V(57, -5.3, 0), V(57, -6, 0)),  # 8
    Part.LineSegment(V(57, -6, 0), V(55.7, -6, 0)),  # 9
    Part.LineSegment(V(55.7, -6, 0), V(55.7, -7.6, 0)),  # 10
    Part.LineSegment(V(55.7, -7.6, 0), V(57, -7.6, 0)),  # 11
    Part.LineSegment(V(58.3, -7.6, 0), V(58.3, -6, 0)),  # 12
    Part.LineSegment(V(58.3, -6, 0), V(94.2, -6, 0)),  # 13
    Part.LineSegment(V(94.2, -6, 0), V(94.2, -7.6, 0)),  # 14
    Part.LineSegment(V(94.2, -7.6, 0), V(58.3, -7.6, 0)),  # 15
], False)
sketch12.addConstraint([
    Sketcher.Constraint("Coincident", 0, 2, 1, 1),
    Sketcher.Constraint("Coincident", 1, 2, 2, 1),
    Sketcher.Constraint("Coincident", 2, 2, 3, 1),
    Sketcher.Constraint("Coincident", 3, 2, 4, 1),
    Sketcher.Constraint("Coincident", 4, 2, 5, 1),
    Sketcher.Constraint("Coincident", 5, 2, 6, 1),
    Sketcher.Constraint("Coincident", 6, 2, 7, 1),
    Sketcher.Constraint("Coincident", 7, 2, 8, 1),
    Sketcher.Constraint("Coincident", 8, 2, 9, 1),
    Sketcher.Constraint("Coincident", 9, 2, 10, 1),
    Sketcher.Constraint("Coincident", 10, 2, 11, 1),
    Sketcher.Constraint("Coincident", 11, 2, 0, 1),
    Sketcher.Constraint("Coincident", 12, 2, 13, 1),
    Sketcher.Constraint("Coincident", 13, 2, 14, 1),
    Sketcher.Constraint("Coincident", 14, 2, 15, 1),
    Sketcher.Constraint("Coincident", 15, 2, 12, 1),
    Sketcher.Constraint("Vertical", 0),
    Sketcher.Constraint("Horizontal", 1),
    Sketcher.Constraint("Vertical", 2),
    Sketcher.Constraint("Horizontal", 3),
    Sketcher.Constraint("Vertical", 4),
    Sketcher.Constraint("Horizontal", 5),
    Sketcher.Constraint("Vertical", 6),
    Sketcher.Constraint("Horizontal", 7),
    Sketcher.Constraint("Vertical", 8),
    Sketcher.Constraint("Horizontal", 9),
    Sketcher.Constraint("Vertical", 10),
    Sketcher.Constraint("Horizontal", 11),
    Sketcher.Constraint("Vertical", 12),
    Sketcher.Constraint("Horizontal", 13),
    Sketcher.Constraint("Vertical", 14),
    Sketcher.Constraint("Horizontal", 15),
    Sketcher.Constraint("Horizontal", 9, 2, 12, 2),
    Sketcher.Constraint("Horizontal", 11, 2, 14, 2),
    Sketcher.Constraint("Vertical", 2, 2, 5, 2),
    Sketcher.Constraint("Vertical", 0, 2, 7, 2),
    Sketcher.Constraint("Equal", 4, 10),
    Sketcher.Constraint("DistanceX", 9, 2, 9, 1, Q("1.335001 mm")),
    Sketcher.Constraint("DistanceX", 1, 1, 1, 2, Q("38.037399 mm")),
    Sketcher.Constraint("DistanceX", 3, 1, 3, 2, Q("1.1913 mm")),
    Sketcher.Constraint("DistanceY", 0, 2, 0, 1, Q("0.778438 mm")),
    Sketcher.Constraint("DistanceY", 4, 1, 4, 2, Q("1.597829 mm")),
    Sketcher.Constraint("DistanceY", 4, 2, -1, 1, Q("5.839899 mm")),
    Sketcher.Constraint("DistanceX", 13, 1, 13, 2, Q("35.897763 mm")),
    Sketcher.Constraint("DistanceY", 2, 1, 2, 2, Q("0.939742 mm")),
    Sketcher.Constraint("DistanceY", 6, 1, 6, 2, Q("0.548042 mm")),
    Sketcher.Constraint("DistanceX", -1, 1, 13, 2, Q("94.16146 mm")),
    Sketcher.Constraint("DistanceX", 8, 2, 12, 2, Q("1.222789 mm")),
])
pad12 = doc.addObject("PartDesign::Pad", "Pad011")
body15.addObject(pad12)
pad12.Profile = sketch12
pad12.Length = 4
body16 = doc.addObject("PartDesign::Body", "Body015")

# Sketch on XZ plane
sketch13 = doc.addObject("Sketcher::SketchObject", "Sketch012")
body16.addObject(sketch13)
sketch13.AttachmentSupport = (doc.getObject("XZ_Plane015"), [""])
sketch13.MapMode = "FlatFace"
sketch13.AttachmentOffset = App.Placement(V(0, 0, 5.68656), App.Rotation())
sketch13.addGeometry([
    Part.LineSegment(V(5.5, -6.1, 0), V(4.2, -6.1, 0)),  # 0
    Part.LineSegment(V(4.2, -6.1, 0), V(4.2, -7.7, 0)),  # 1
    Part.LineSegment(V(4.2, -7.7, 0), V(5.5, -7.7, 0)),  # 2
    Part.LineSegment(V(5.5, -7.7, 0), V(5.5, -8.5, 0)),  # 3
    Part.LineSegment(V(5.5, -8.5, 0), V(36.5, -8.5, 0)),  # 4
    Part.LineSegment(V(36.5, -8.5, 0), V(36.5, -7.7, 0)),  # 5
    Part.LineSegment(V(36.5, -7.7, 0), V(37.7, -7.7, 0)),  # 6
    Part.LineSegment(V(37.7, -7.7, 0), V(37.7, -6.1, 0)),  # 7
    Part.LineSegment(V(37.7, -6.1, 0), V(36.5, -6.1, 0)),  # 8
    Part.LineSegment(V(36.5, -6.1, 0), V(36.5, -5.4, 0)),  # 9
    Part.LineSegment(V(36.5, -5.4, 0), V(5.5, -5.4, 0)),  # 10
    Part.LineSegment(V(5.5, -5.4, 0), V(5.5, -6.1, 0)),  # 11
    Part.LineSegment(V(6.7, -7.7, 0), V(6.7, -6.1, 0)),  # 12
    Part.LineSegment(V(6.7, -6.1, 0), V(35.6, -6.1, 0)),  # 13
    Part.LineSegment(V(35.6, -6.1, 0), V(35.6, -7.7, 0)),  # 14
    Part.LineSegment(V(35.6, -7.7, 0), V(6.7, -7.7, 0)),  # 15
], False)
sketch13.addConstraint([
    Sketcher.Constraint("Coincident", 0, 2, 1, 1),
    Sketcher.Constraint("Coincident", 1, 2, 2, 1),
    Sketcher.Constraint("Coincident", 2, 2, 3, 1),
    Sketcher.Constraint("Coincident", 3, 2, 4, 1),
    Sketcher.Constraint("Coincident", 4, 2, 5, 1),
    Sketcher.Constraint("Coincident", 5, 2, 6, 1),
    Sketcher.Constraint("Coincident", 6, 2, 7, 1),
    Sketcher.Constraint("Coincident", 7, 2, 8, 1),
    Sketcher.Constraint("Coincident", 8, 2, 9, 1),
    Sketcher.Constraint("Coincident", 9, 2, 10, 1),
    Sketcher.Constraint("Coincident", 10, 2, 11, 1),
    Sketcher.Constraint("Coincident", 11, 2, 0, 1),
    Sketcher.Constraint("Coincident", 12, 2, 13, 1),
    Sketcher.Constraint("Coincident", 13, 2, 14, 1),
    Sketcher.Constraint("Coincident", 14, 2, 15, 1),
    Sketcher.Constraint("Coincident", 15, 2, 12, 1),
    Sketcher.Constraint("Horizontal", 0),
    Sketcher.Constraint("Vertical", 1),
    Sketcher.Constraint("Horizontal", 2),
    Sketcher.Constraint("Vertical", 3),
    Sketcher.Constraint("Horizontal", 4),
    Sketcher.Constraint("Vertical", 5),
    Sketcher.Constraint("Horizontal", 6),
    Sketcher.Constraint("Vertical", 7),
    Sketcher.Constraint("Horizontal", 8),
    Sketcher.Constraint("Vertical", 9),
    Sketcher.Constraint("Horizontal", 10),
    Sketcher.Constraint("Vertical", 11),
    Sketcher.Constraint("Vertical", 12),
    Sketcher.Constraint("Horizontal", 13),
    Sketcher.Constraint("Vertical", 14),
    Sketcher.Constraint("Horizontal", 15),
    Sketcher.Constraint("Horizontal", 2, 2, 5, 2),
    Sketcher.Constraint("Horizontal", 0, 2, 7, 2),
    Sketcher.Constraint("Horizontal", 11, 2, 12, 2),
    Sketcher.Constraint("Horizontal", 6, 2, 14, 2),
    Sketcher.Constraint("Vertical", 5, 2, 8, 2),
    Sketcher.Constraint("Vertical", 3, 2, 10, 2),
    Sketcher.Constraint("DistanceX", 0, 2, 0, 1, Q("1.335001 mm")),
    Sketcher.Constraint("DistanceX", 6, 1, 6, 2, Q("1.1913 mm")),
    Sketcher.Constraint("DistanceX", 13, 1, 13, 2, Q("28.811718 mm")),
    Sketcher.Constraint("DistanceY", 1, 2, 1, 1, Q("1.597829 mm")),
    Sketcher.Constraint("DistanceY", 3, 2, 3, 1, Q("0.778438 mm")),
    Sketcher.Constraint("DistanceX", 4, 1, 4, 2, Q("30.951354 mm")),
    Sketcher.Constraint("DistanceY", 9, 1, 9, 2, Q("0.709347 mm")),
    Sketcher.Constraint("DistanceX", -1, 1, 4, 2, Q("36.475691 mm")),
    Sketcher.Constraint("DistanceY", 9, 2, -1, 1, Q("5.43856 mm")),
    Sketcher.Constraint("DistanceX", 11, 2, 12, 2, Q("1.222789 mm")),
])
pad13 = doc.addObject("PartDesign::Pad", "Pad012")
body16.addObject(pad13)
pad13.Profile = sketch13
pad13.Length = 4

doc.recompute()
